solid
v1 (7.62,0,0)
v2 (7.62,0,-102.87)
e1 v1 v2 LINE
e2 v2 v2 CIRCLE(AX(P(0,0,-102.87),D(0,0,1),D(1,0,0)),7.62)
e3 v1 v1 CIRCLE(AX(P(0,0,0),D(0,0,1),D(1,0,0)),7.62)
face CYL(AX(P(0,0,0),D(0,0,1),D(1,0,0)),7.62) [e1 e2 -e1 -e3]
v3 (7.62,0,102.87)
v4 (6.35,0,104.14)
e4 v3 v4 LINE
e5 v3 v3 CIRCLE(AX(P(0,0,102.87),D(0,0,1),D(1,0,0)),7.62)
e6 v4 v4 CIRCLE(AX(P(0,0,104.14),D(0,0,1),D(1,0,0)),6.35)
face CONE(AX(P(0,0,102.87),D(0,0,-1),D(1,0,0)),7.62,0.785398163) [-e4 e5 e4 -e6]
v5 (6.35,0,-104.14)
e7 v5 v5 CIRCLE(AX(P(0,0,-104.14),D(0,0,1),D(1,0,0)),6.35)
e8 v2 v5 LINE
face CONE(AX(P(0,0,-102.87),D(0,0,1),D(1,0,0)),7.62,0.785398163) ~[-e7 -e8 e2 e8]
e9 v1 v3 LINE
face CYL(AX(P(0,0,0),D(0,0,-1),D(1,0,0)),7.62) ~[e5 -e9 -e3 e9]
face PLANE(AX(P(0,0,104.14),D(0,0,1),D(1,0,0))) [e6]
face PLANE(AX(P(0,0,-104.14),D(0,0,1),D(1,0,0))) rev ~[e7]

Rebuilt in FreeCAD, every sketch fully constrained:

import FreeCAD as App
import Part
import Sketcher
from FreeCAD import Vector
Q = App.Units.Quantity


def edges_at(feature, points):
    """Names of the edges that pass closest to the given points."""
    edges = feature.Shape.Edges
    near = lambda p: min(range(len(edges)), key=lambda i: edges[i].distToShape(Part.Vertex(*p))[0])
    return sorted({f"Edge{near(p) + 1}" for p in points})

doc = App.newDocument("Part")
params = doc.addObject("Spreadsheet::Sheet", "Params")
for row, (alias, value) in enumerate([
    ("sketch1_diameter", "0.6 in"),
    ("pad1_length", "8.2 in"),
    ("chamfer_size", "0.05 in"),
], start=1):
    params.set(f"A{row}", alias)
    params.set(f"B{row}", "=" + value)
    params.setAlias(f"B{row}", alias)

body = doc.addObject("PartDesign::Body", "Body")

# Sketch on XY plane
sketch1 = body.newObject("Sketcher::SketchObject", "Sketch")
sketch1.AttachmentSupport = (doc.getObject("XY_Plane"), [""])
sketch1.MapMode = "FlatFace"
sketch1.addGeometry(Part.Circle(Vector(0, 0, 0), Vector(0, 0, 1), 8), False)
sketch1.addConstraint([
    Sketcher.Constraint("Coincident", 0, 3, -1, 1),
    Sketcher.Constraint("Diameter", 0, Q("0.6 in")),
])
sketch1.setExpression("Constraints[1]", "Params.sketch1_diameter")
pad1 = body.newObject("PartDesign::Pad", "Pad")
pad1.Profile = sketch1
pad1.setExpression("Length", "Params.pad1_length")
pad1.Midplane = True
doc.recompute()

chamfer = body.newObject("PartDesign::Chamfer", "Chamfer")
chamfer.Base = (pad1, edges_at(pad1, [(-7.62, 0, 104.14), (-7.62, 0, -104.14)]))
chamfer.setExpression("Size", "Params.chamfer_size")

doc.recompute()
